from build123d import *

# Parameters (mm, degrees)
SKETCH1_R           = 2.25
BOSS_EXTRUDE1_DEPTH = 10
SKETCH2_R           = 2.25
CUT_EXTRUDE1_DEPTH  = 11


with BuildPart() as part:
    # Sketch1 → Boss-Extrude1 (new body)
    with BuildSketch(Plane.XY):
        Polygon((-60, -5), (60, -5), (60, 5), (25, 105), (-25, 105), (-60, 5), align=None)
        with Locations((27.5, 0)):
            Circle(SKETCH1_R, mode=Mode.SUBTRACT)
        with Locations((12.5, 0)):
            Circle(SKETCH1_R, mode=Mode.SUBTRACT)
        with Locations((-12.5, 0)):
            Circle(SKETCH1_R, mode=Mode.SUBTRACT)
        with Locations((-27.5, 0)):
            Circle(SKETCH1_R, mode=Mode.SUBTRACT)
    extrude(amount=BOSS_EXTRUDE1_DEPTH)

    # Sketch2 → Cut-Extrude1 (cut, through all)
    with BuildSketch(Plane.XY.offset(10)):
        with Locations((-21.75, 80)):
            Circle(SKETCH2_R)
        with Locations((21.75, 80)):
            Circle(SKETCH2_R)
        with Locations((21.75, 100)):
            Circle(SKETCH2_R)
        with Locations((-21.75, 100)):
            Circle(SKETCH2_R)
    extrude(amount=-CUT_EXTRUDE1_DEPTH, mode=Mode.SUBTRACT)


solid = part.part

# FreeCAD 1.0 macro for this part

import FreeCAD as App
import Part
import Sketcher
from FreeCAD import Vector
Q = App.Units.Quantity


def add_polygon(sketch, points):
    """Adds a closed chain of lines whose ends are joined by coincident constraints."""
    first, n = sketch.GeometryCount, len(points)
    for a, b in zip(points, points[1:] + points[:1]):
        sketch.addGeometry(Part.LineSegment(App.Vector(*a, 0), App.Vector(*b, 0)), False)
    for i in range(n):
        sketch.addConstraint(Sketcher.Constraint("Coincident", first + i, 2, first + (i + 1) % n, 1))

doc = App.newDocument("Part")
body = doc.addObject("PartDesign::Body", "Body")

sketch1 = body.newObject("Sketcher::SketchObject", "Sketch")
sketch1.AttachmentSupport = (doc.getObject("XY_Plane"), [""])
sketch1.MapMode = "FlatFace"
add_polygon(sketch1, [(-60, -5), (60, -5), (60, 5), (25, 105), (-25, 105), (-60, 5)])
sketch1.addGeometry(Part.Circle(Vector(-27.5, 0, 0), Vector(0, 0, 1), 2.2), False)
sketch1.addGeometry(Part.Circle(Vector(-12.5, 0, 0), Vector(0, 0, 1), 2.2), False)
sketch1.addGeometry(Part.Circle(Vector(12.5, 0, 0), Vector(0, 0, 1), 2.2), False)
sketch1.addGeometry(Part.Circle(Vector(27.5, 0, 0), Vector(0, 0, 1), 2.2), False)
sketch1.addConstraint([
    Sketcher.Constraint("Horizontal", 0),
    Sketcher.Constraint("Vertical", 1),
    Sketcher.Constraint("Horizontal", 3),
    Sketcher.Constraint("Vertical", 5),
    Sketcher.Constraint("Equal", 6, 7),
    Sketcher.Constraint("Equal", 7, 8),
    Sketcher.Constraint("Equal", 8, 9),
    Sketcher.Constraint("Symmetric", 7, 3, 8, 3, -1, 1),
    Sketcher.Constraint("Symmetric", 6, 3, 9, 3, -1, 1),
    Sketcher.Constraint("Symmetric", 0, 2, 4, 2, -1, 1),
    Sketcher.Constraint("PointOnObject", 6, 3, -1),
    Sketcher.Constraint("PointOnObject", 7, 3, -1),
    Sketcher.Constraint("Horizontal", 1, 2, 4, 2),
    Sketcher.Constraint("Equal", 2, 4),
    Sketcher.Constraint("Diameter", 6, Q("4.5 mm")),
    Sketcher.Constraint("DistanceX", 0, 1, 0, 2, Q("120 mm")),
    Sketcher.Constraint("DistanceX", 3, 2, 3, 1, Q("50 mm")),
    Sketcher.Constraint("DistanceY", 1, 1, 1, 2, Q("10 mm")),
    Sketcher.Constraint("DistanceY", -1, 1, 2, 2, Q("105 mm")),
    Sketcher.Constraint("DistanceX", 6, 3, 7, 3, Q("15 mm")),
    Sketcher.Constraint("DistanceX", 7, 3, 8, 3, Q("25 mm")),
])
pad1 = body.newObject("PartDesign::Pad", "Pad")
pad1.Profile = sketch1
pad1.Length = 10

sketch2 = body.newObject("Sketcher::SketchObject", "Sketch001")
sketch2.AttachmentSupport = (doc.getObject("XY_Plane"), [""])
sketch2.MapMode = "FlatFace"
sketch2.AttachmentOffset = App.Placement(Vector(0, 0, 10), App.Rotation())
sketch2.addGeometry([
    Part.Circle(Vector(-21.8, 80, 0), Vector(0, 0, 1), 2.2),
    Part.Circle(Vector(21.8, 80, 0), Vector(0, 0, 1), 2.2),
    Part.Circle(Vector(21.8, 100, 0), Vector(0, 0, 1), 2.2),
    Part.Circle(Vector(-21.8, 100, 0), Vector(0, 0, 1), 2.2),
], False)
sketch2.addConstraint([
    Sketcher.Constraint("Equal", 0, 1),
    Sketcher.Constraint("Equal", 1, 2),
    Sketcher.Constraint("Equal", 2, 3),
    Sketcher.Constraint("Symmetric", 0, 3, 1, 3, -2),
    Sketcher.Constraint("Symmetric", 2, 3, 3, 3, -2),
    Sketcher.Constraint("Vertical", 1, 3, 2, 3),
    Sketcher.Constraint("Diameter", 0, Q("4.5 mm")),
    Sketcher.Constraint("DistanceY", -1, 1, 0, 3, Q("80 mm")),
    Sketcher.Constraint("DistanceY", -1, 1, 2, 3, Q("100 mm")),
    Sketcher.Constraint("DistanceX", 0, 3, 1, 3, Q("43.5 mm")),
])
pocket1 = body.newObject("PartDesign::Pocket", "Pocket")
pocket1.Profile = sketch2
pocket1.Type = "ThroughAll"

doc.recompute()
